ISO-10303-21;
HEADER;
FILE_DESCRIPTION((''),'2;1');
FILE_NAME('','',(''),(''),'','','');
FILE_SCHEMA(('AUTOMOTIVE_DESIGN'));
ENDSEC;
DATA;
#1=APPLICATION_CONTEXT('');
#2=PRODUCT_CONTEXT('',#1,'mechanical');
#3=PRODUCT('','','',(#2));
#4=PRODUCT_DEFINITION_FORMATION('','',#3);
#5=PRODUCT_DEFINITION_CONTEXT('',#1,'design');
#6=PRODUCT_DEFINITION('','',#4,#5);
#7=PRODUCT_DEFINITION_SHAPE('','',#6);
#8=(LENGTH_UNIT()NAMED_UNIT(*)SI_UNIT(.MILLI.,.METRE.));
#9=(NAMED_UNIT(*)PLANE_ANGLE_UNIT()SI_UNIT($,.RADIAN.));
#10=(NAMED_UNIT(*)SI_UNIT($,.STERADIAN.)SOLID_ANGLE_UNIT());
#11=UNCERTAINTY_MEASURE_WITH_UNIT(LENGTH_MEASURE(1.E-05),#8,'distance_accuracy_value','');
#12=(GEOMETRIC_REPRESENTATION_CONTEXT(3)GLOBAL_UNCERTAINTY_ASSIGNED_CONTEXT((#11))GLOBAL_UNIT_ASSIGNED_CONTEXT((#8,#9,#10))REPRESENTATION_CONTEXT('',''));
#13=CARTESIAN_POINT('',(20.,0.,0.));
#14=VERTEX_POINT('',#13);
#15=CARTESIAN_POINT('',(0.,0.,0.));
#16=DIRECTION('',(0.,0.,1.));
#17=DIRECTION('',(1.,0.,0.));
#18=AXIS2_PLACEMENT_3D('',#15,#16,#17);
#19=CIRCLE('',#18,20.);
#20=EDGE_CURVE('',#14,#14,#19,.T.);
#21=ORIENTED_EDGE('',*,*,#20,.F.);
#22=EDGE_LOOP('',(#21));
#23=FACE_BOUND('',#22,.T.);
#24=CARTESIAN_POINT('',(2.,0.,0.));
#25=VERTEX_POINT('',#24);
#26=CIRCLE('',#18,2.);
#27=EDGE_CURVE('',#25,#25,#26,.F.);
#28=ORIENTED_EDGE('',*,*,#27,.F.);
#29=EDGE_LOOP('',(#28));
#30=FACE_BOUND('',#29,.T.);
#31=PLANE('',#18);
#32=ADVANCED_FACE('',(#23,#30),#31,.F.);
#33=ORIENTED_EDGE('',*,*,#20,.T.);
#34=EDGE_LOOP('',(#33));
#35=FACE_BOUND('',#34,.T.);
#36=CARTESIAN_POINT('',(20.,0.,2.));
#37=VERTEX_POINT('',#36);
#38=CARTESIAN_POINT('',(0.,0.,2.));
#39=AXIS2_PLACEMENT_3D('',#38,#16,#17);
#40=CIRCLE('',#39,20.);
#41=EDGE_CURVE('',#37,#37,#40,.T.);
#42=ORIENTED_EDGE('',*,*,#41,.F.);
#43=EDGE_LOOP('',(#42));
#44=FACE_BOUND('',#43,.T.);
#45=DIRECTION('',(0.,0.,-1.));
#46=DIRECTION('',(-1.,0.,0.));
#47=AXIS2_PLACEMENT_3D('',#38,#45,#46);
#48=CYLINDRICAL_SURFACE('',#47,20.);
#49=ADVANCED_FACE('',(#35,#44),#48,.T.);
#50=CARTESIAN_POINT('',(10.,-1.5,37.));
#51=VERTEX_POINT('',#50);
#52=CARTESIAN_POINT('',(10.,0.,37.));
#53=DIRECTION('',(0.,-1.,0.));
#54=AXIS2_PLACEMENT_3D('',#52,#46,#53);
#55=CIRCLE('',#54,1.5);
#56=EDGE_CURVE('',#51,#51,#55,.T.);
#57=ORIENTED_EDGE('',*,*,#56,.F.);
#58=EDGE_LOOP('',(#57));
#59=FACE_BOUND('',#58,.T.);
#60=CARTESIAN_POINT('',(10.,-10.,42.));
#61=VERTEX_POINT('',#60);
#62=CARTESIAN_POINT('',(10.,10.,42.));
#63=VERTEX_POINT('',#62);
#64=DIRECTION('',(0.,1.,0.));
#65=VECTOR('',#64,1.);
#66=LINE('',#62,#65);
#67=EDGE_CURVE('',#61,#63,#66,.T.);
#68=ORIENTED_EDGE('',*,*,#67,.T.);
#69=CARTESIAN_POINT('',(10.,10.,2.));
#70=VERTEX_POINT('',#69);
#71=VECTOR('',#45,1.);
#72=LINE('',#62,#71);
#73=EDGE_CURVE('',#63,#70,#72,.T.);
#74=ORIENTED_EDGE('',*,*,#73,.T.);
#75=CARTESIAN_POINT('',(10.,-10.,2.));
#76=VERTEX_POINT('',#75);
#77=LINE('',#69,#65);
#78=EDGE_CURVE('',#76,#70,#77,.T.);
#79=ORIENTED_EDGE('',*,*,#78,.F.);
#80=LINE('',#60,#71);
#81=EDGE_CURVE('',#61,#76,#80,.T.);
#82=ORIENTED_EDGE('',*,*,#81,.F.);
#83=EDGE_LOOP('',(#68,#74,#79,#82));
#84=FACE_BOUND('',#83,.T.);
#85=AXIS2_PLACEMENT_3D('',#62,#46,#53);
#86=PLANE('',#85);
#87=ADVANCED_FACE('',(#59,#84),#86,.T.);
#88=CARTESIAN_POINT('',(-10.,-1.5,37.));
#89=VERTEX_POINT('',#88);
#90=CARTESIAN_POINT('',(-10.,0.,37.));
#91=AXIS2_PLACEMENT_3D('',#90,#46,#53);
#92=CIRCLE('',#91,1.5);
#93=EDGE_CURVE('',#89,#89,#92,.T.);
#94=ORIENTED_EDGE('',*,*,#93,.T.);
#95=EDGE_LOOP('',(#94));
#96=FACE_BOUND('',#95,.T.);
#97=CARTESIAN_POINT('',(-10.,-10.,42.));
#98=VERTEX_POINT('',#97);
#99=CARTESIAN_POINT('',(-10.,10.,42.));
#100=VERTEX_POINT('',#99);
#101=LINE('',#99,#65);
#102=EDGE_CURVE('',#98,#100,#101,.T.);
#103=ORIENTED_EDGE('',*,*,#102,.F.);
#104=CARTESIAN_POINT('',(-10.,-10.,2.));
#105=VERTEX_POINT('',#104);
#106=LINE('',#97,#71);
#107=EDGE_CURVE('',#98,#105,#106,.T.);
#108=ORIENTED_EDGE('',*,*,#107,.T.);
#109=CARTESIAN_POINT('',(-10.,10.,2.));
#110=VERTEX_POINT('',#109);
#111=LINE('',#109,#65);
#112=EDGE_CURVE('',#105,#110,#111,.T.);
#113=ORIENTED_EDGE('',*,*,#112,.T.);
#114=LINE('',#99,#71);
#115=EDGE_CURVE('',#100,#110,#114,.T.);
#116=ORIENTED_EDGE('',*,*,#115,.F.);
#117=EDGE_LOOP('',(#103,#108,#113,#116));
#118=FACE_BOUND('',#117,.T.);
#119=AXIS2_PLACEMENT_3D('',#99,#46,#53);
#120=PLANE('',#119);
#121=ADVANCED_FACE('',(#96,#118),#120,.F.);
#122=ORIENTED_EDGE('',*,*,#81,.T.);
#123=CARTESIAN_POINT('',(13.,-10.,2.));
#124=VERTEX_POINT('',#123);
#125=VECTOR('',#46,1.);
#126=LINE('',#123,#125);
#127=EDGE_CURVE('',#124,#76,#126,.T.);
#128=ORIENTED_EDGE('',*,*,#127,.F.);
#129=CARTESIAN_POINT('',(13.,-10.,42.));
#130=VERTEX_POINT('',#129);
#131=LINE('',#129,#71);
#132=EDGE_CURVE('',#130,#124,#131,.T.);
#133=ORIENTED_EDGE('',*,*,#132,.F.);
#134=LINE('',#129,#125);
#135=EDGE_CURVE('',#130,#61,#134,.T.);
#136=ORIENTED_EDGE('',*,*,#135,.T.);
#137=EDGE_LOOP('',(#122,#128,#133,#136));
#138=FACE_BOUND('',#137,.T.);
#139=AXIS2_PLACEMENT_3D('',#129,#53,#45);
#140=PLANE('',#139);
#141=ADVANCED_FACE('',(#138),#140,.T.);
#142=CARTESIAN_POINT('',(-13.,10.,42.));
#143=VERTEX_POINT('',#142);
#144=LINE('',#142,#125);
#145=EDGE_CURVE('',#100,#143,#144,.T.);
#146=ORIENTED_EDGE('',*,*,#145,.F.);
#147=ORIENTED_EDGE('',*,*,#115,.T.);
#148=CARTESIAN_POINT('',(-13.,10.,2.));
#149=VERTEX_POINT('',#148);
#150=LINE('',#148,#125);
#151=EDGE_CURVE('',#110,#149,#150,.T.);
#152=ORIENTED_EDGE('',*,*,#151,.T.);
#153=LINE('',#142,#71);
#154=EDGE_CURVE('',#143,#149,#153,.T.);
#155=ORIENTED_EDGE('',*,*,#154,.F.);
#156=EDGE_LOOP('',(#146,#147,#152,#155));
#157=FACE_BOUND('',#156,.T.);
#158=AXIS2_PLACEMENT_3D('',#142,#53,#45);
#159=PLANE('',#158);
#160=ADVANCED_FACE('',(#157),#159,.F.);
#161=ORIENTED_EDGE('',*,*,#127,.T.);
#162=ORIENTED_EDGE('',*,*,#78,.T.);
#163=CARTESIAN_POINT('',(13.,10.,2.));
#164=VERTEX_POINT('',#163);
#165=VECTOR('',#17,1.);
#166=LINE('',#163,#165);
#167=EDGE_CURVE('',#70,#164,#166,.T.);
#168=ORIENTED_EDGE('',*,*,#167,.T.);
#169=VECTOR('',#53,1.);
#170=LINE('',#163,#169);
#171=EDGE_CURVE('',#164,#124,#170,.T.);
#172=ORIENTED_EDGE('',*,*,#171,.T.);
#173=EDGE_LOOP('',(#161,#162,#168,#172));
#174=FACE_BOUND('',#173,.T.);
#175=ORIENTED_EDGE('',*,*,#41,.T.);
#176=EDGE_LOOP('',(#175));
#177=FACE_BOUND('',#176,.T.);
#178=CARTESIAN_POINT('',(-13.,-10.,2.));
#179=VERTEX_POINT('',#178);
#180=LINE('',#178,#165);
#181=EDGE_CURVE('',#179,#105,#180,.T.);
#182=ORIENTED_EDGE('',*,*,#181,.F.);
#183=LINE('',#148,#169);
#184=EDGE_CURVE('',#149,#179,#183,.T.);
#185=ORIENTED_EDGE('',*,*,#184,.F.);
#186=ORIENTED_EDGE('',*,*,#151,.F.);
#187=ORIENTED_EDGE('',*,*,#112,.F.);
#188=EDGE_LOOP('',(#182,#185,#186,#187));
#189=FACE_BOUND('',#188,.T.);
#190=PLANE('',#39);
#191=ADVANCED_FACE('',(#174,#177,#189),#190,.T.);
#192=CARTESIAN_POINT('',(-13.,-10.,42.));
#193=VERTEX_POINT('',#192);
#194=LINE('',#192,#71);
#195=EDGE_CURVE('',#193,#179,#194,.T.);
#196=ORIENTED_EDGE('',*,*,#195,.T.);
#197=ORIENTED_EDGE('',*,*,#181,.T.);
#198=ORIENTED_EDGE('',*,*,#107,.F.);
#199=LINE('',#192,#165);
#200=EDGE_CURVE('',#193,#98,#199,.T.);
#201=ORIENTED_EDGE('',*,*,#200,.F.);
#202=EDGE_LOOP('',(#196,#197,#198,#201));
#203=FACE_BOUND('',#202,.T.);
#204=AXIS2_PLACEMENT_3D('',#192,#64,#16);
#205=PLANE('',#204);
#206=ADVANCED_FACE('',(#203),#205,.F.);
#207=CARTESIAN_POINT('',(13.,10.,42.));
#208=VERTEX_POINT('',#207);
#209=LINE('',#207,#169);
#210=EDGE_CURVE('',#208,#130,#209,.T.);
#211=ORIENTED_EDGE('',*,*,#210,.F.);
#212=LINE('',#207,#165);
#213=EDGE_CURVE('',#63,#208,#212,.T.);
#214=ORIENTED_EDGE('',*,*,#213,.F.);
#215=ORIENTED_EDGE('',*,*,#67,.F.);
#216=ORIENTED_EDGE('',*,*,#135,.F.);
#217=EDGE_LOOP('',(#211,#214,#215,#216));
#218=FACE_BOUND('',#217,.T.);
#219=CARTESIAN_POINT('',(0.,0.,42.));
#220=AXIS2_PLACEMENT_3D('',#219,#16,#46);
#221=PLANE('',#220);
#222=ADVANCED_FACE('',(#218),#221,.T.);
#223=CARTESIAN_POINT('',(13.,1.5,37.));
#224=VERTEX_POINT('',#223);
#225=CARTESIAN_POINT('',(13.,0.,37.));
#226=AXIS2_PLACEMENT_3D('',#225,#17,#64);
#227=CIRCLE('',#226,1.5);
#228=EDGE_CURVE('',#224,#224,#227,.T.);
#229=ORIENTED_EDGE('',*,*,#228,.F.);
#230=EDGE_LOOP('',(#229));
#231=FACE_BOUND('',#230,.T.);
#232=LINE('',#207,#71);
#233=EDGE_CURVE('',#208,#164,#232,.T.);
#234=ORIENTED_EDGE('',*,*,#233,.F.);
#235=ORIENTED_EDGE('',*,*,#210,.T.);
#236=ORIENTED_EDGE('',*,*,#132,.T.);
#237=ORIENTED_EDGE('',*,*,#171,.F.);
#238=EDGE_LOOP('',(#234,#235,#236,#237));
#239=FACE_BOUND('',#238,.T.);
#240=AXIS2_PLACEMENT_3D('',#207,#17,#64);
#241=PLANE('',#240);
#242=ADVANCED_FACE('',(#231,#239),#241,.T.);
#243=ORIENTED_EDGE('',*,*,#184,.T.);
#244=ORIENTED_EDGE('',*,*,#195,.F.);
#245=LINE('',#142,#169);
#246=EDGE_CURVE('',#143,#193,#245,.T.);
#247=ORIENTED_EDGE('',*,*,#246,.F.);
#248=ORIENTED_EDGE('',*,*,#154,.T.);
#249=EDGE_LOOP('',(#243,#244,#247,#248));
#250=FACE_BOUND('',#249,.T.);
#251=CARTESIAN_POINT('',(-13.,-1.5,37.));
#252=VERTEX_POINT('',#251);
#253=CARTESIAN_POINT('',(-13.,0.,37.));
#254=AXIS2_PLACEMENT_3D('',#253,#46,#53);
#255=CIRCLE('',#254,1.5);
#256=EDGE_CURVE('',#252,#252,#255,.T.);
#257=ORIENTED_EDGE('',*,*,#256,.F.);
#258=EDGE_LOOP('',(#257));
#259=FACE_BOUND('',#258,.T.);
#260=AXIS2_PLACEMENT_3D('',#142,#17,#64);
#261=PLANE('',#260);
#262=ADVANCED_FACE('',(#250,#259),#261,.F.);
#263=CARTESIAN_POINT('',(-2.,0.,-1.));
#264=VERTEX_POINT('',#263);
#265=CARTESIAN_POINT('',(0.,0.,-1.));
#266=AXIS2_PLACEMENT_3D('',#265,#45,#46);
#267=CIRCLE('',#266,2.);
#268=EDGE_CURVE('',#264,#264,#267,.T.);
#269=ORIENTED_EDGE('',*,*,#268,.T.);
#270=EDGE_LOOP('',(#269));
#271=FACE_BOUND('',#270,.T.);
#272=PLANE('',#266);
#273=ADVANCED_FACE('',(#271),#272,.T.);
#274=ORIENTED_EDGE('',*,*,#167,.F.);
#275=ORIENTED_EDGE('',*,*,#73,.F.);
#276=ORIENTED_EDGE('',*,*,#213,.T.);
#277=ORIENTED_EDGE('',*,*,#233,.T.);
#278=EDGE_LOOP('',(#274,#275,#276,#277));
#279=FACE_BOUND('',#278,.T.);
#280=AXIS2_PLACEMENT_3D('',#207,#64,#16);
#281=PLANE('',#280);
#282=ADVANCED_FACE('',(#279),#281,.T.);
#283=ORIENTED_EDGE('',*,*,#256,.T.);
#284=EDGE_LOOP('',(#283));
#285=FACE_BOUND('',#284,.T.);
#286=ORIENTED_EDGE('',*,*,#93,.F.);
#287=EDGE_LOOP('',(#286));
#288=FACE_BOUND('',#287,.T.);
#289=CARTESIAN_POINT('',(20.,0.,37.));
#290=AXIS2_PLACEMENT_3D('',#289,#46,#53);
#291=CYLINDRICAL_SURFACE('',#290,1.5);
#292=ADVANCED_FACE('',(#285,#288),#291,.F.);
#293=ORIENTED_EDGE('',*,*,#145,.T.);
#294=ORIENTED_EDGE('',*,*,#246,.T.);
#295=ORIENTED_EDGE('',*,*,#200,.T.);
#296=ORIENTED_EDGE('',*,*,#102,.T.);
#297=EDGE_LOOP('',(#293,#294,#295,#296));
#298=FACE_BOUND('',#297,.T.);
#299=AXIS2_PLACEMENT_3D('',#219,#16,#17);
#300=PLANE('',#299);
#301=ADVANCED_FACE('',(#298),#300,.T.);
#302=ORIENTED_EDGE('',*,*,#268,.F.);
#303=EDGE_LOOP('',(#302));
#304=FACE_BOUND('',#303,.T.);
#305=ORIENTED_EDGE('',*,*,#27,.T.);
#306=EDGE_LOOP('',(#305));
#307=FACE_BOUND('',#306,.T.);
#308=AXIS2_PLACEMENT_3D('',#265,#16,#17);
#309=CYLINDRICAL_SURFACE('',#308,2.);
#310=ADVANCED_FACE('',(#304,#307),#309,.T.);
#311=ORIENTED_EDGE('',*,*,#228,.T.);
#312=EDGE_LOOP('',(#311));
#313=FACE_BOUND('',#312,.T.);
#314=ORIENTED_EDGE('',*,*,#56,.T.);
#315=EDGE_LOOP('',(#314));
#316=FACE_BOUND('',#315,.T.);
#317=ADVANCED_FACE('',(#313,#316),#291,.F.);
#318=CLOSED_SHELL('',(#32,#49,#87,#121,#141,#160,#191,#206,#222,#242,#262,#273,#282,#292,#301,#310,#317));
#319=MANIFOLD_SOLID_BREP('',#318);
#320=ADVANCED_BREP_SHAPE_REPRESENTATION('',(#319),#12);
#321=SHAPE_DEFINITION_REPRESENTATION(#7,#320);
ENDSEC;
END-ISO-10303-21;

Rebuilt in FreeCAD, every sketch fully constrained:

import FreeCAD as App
import Part
import Sketcher
from FreeCAD import Vector
Q = App.Units.Quantity


def add_polygon(sketch, points):
    """Adds a closed chain of lines whose ends are joined by coincident constraints."""
    first, n = sketch.GeometryCount, len(points)
    for a, b in zip(points, points[1:] + points[:1]):
        sketch.addGeometry(Part.LineSegment(App.Vector(*a, 0), App.Vector(*b, 0)), False)
    for i in range(n):
        sketch.addConstraint(Sketcher.Constraint("Coincident", first + i, 2, first + (i + 1) % n, 1))

doc = App.newDocument("Part")
body = doc.addObject("PartDesign::Body", "Body")

sketch1 = body.newObject("Sketcher::SketchObject", "Sketch")
sketch1.AttachmentSupport = (doc.getObject("XY_Plane"), [""])
sketch1.MapMode = "FlatFace"
sketch1.addGeometry(Part.Circle(Vector(0, 0, 0), Vector(0, 0, 1), 20), False)
sketch1.addConstraint([
    Sketcher.Constraint("Coincident", 0, 3, -1, 1),
    Sketcher.Constraint("Diameter", 0, Q("40 mm")),
])
pad1 = body.newObject("PartDesign::Pad", "Pad")
pad1.Profile = sketch1
pad1.Length = 2

sketch2 = body.newObject("Sketcher::SketchObject", "Sketch001")
sketch2.AttachmentSupport = (doc.getObject("XY_Plane"), [""])
sketch2.MapMode = "FlatFace"
sketch2.addGeometry(Part.Circle(Vector(0, 0, 0), Vector(0, 0, 1), 2), False)
sketch2.addConstraint([
    Sketcher.Constraint("Coincident", 0, 3, -1, 1),
    Sketcher.Constraint("Diameter", 0, Q("4 mm")),
])
pad2 = body.newObject("PartDesign::Pad", "Pad001")
pad2.Profile = sketch2
pad2.Length = 1
pad2.Reversed = True

sketch3 = body.newObject("Sketcher::SketchObject", "Sketch002")
sketch3.AttachmentSupport = (doc.getObject("XY_Plane"), [""])
sketch3.MapMode = "FlatFace"
sketch3.AttachmentOffset = App.Placement(Vector(0, 0, 2), App.Rotation())
add_polygon(sketch3, [(-13, 10), (-13, -10), (-10, -10), (-10, 10)])
sketch3.addConstraint([
    Sketcher.Constraint("Vertical", 0),
    Sketcher.Constraint("Horizontal", 1),
    Sketcher.Constraint("Vertical", 2),
    Sketcher.Constraint("Horizontal", 3),
    Sketcher.Constraint("DistanceX", 1, 1, 1, 2, Q("3 mm")),
    Sketcher.Constraint("DistanceY", 0, 2, 0, 1, Q("20 mm")),
    Sketcher.Constraint("DistanceX", 0, 2, -1, 1, Q("13 mm")),
    Sketcher.Constraint("DistanceY", 0, 2, -1, 1, Q("10 mm")),
])
pad3 = body.newObject("PartDesign::Pad", "Pad002")
pad3.Profile = sketch3
pad3.Length = 40
doc.recompute()

mirrored = body.newObject("PartDesign::Mirrored", "Mirrored")
mirrored.Originals = [pad3]
mirrored.MirrorPlane = (doc.getObject("YZ_Plane"), [""])
body.Tip = mirrored

sketch4 = body.newObject("Sketcher::SketchObject", "Sketch003")
sketch4.AttachmentSupport = (doc.getObject("YZ_Plane"), [""])
sketch4.MapMode = "FlatFace"
sketch4.AttachmentOffset = App.Placement(Vector(0, 0, -13), App.Rotation())
sketch4.addGeometry(Part.Circle(Vector(0, 37, 0), Vector(0, 0, 1), 1.5), False)
sketch4.addConstraint([
    Sketcher.Constraint("PointOnObject", 0, 3, -2),
    Sketcher.Constraint("Diameter", 0, Q("3 mm")),
    Sketcher.Constraint("DistanceY", -1, 1, 0, 3, Q("37 mm")),
])
pocket1 = body.newObject("PartDesign::Pocket", "Pocket")
pocket1.Profile = sketch4
pocket1.Type = "ThroughAll"
pocket1.Reversed = True

doc.recompute()
